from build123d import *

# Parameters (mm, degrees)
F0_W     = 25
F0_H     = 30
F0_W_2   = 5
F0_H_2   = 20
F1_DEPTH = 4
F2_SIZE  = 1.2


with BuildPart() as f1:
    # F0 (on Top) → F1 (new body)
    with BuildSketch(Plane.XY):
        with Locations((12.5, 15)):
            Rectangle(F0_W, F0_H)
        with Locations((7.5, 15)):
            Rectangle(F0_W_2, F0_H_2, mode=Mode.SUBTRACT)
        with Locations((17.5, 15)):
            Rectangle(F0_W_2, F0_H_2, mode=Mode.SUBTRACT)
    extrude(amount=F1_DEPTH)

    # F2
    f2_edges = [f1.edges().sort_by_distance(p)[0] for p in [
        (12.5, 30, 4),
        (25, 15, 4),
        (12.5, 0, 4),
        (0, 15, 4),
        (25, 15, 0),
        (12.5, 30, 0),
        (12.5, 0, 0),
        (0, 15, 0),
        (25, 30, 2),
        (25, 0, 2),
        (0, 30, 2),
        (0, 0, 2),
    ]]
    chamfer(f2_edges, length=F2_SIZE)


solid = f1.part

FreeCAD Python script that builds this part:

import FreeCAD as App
import Part
import Sketcher


def edges_at(feature, points):
    """Names of the edges that pass closest to the given points."""
    edges = feature.Shape.Edges
    near = lambda p: min(range(len(edges)), key=lambda i: edges[i].distToShape(Part.Vertex(*p))[0])
    return sorted({f"Edge{near(p) + 1}" for p in points})


def add_polygon(sketch, points):
    """Adds a closed chain of lines whose ends are joined by coincident constraints."""
    first, n = sketch.GeometryCount, len(points)
    for a, b in zip(points, points[1:] + points[:1]):
        sketch.addGeometry(Part.LineSegment(App.Vector(*a, 0), App.Vector(*b, 0)), False)
    for i in range(n):
        sketch.addConstraint(Sketcher.Constraint("Coincident", first + i, 2, first + (i + 1) % n, 1))

doc = App.newDocument("Part")
body = doc.addObject("PartDesign::Body", "Body")

sketch1 = body.newObject("Sketcher::SketchObject", "Sketch")
sketch1.AttachmentSupport = (doc.getObject("XY_Plane"), [""])
sketch1.MapMode = "FlatFace"
add_polygon(sketch1, [(0, 30), (0, 0), (25, 0), (25, 30)])
add_polygon(sketch1, [(10, 5), (5, 5), (5, 25), (10, 25)])
add_polygon(sketch1, [(20, 5), (15, 5), (15, 25), (20, 25)])
sketch1.addConstraint([
    Sketcher.Constraint("Vertical", 0),
    Sketcher.Constraint("Horizontal", 1),
    Sketcher.Constraint("Vertical", 2),
    Sketcher.Constraint("Horizontal", 3),
    Sketcher.Constraint("Horizontal", 4),
    Sketcher.Constraint("Vertical", 5),
    Sketcher.Constraint("Horizontal", 6),
    Sketcher.Constraint("Vertical", 7),
    Sketcher.Constraint("Horizontal", 8),
    Sketcher.Constraint("Vertical", 9),
    Sketcher.Constraint("Horizontal", 10),
    Sketcher.Constraint("Vertical", 11),
    Sketcher.Constraint("Coincident", 0, 2, -1, 1),
    Sketcher.Constraint("Horizontal", 7, 2, 8, 2),
    Sketcher.Constraint("Horizontal", 6, 2, 9, 2),
    Sketcher.Constraint("Equal", 6, 8),
    Sketcher.Constraint("DistanceX", 1, 1, 1, 2, 25.0),
    Sketcher.Constraint("DistanceX", 4, 2, 4, 1, 5.0),
    Sketcher.Constraint("DistanceY", 0, 2, 0, 1, 30.0),
    Sketcher.Constraint("DistanceY", 5, 1, 5, 2, 20.0),
    Sketcher.Constraint("DistanceX", -1, 1, 4, 2, 5.0),
    Sketcher.Constraint("DistanceY", -1, 1, 4, 2, 5.0),
    Sketcher.Constraint("DistanceX", -1, 1, 8, 2, 15.0),
])
pad1 = body.newObject("PartDesign::Pad", "Pad")
pad1.Profile = sketch1
pad1.Length = 4
doc.recompute()

chamfer = body.newObject("PartDesign::Chamfer", "Chamfer")
chamfer.Base = (pad1, edges_at(pad1, [
    (12.5, 30, 4),
    (25, 15, 4),
    (12.5, 0, 4),
    (0, 15, 4),
    (25, 15, 0),
    (12.5, 30, 0),
    (12.5, 0, 0),
    (0, 15, 0),
    (25, 30, 2),
    (25, 0, 2),
    (0, 30, 2),
    (0, 0, 2),
]))
chamfer.Size = 1.2

doc.recompute()
